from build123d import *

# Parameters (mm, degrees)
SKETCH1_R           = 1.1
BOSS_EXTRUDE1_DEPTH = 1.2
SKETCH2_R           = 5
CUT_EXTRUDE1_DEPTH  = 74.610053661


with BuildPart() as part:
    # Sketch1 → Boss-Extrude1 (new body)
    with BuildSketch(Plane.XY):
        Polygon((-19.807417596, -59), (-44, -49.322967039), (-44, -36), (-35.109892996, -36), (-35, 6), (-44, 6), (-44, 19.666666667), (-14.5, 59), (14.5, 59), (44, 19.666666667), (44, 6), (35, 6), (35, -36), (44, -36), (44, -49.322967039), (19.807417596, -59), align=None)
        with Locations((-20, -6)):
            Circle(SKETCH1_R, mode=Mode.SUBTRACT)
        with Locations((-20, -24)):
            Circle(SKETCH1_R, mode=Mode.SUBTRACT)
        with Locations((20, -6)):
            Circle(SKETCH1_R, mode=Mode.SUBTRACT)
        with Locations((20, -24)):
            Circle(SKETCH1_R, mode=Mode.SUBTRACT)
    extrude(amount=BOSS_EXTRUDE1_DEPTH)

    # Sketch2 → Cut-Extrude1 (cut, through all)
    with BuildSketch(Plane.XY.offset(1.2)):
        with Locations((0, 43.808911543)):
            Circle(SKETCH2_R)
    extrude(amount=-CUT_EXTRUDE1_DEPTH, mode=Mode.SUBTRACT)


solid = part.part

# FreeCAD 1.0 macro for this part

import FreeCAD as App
import Part
import Sketcher

doc = App.newDocument("Part")
body = doc.addObject("PartDesign::Body", "Body")

sketch1 = body.newObject("Sketcher::SketchObject", "Sketch")
sketch1.AttachmentSupport = (doc.getObject("XY_Plane"), [""])
sketch1.MapMode = "FlatFace"
sketch1.addGeometry([
    Part.LineSegment(App.Vector(-44, -49.322967, 0), App.Vector(-19.807418, -59, 0)),
    Part.LineSegment(App.Vector(-19.807418, -59, 0), App.Vector(19.807418, -59, 0)),
    Part.LineSegment(App.Vector(19.807418, -59, 0), App.Vector(44, -49.322967, 0)),
    Part.LineSegment(App.Vector(44, -49.322967, 0), App.Vector(44, -36, 0)),
    Part.LineSegment(App.Vector(44, -36, 0), App.Vector(35, -36, 0)),
    Part.LineSegment(App.Vector(35, -36, 0), App.Vector(35, 6, 0)),
    Part.LineSegment(App.Vector(35, 6, 0), App.Vector(44, 6, 0)),
    Part.LineSegment(App.Vector(44, 6, 0), App.Vector(44, 19.666667, 0)),
    Part.LineSegment(App.Vector(44, 19.666667, 0), App.Vector(14.5, 59, 0)),
    Part.LineSegment(App.Vector(14.5, 59, 0), App.Vector(-14.5, 59, 0)),
    Part.LineSegment(App.Vector(-14.5, 59, 0), App.Vector(-44, 19.666667, 0)),
    Part.LineSegment(App.Vector(-44, 19.666667, 0), App.Vector(-44, 6, 0)),
    Part.LineSegment(App.Vector(-44, 6, 0), App.Vector(-35, 6, 0)),
    Part.LineSegment(App.Vector(-35, 6, 0), App.Vector(-35.109893, -36, 0)),
    Part.LineSegment(App.Vector(-35.109893, -36, 0), App.Vector(-44, -36, 0)),
    Part.LineSegment(App.Vector(-44, -36, 0), App.Vector(-44, -49.322967, 0)),
    Part.Circle(App.Vector(20, -24, 0), App.Vector(0, 0, 1), 1.1),
    Part.Circle(App.Vector(-20, -24, 0), App.Vector(0, 0, 1), 1.1),
    Part.Circle(App.Vector(20, -6, 0), App.Vector(0, 0, 1), 1.1),
    Part.Circle(App.Vector(-20, -6, 0), App.Vector(0, 0, 1), 1.1),
], False)
sketch1.addConstraint([
    Sketcher.Constraint("Coincident", 0, 2, 1, 1),
    Sketcher.Constraint("Coincident", 1, 2, 2, 1),
    Sketcher.Constraint("Coincident", 2, 2, 3, 1),
    Sketcher.Constraint("Coincident", 3, 2, 4, 1),
    Sketcher.Constraint("Coincident", 4, 2, 5, 1),
    Sketcher.Constraint("Coincident", 5, 2, 6, 1),
    Sketcher.Constraint("Coincident", 6, 2, 7, 1),
    Sketcher.Constraint("Coincident", 7, 2, 8, 1),
    Sketcher.Constraint("Coincident", 8, 2, 9, 1),
    Sketcher.Constraint("Coincident", 9, 2, 10, 1),
    Sketcher.Constraint("Coincident", 10, 2, 11, 1),
    Sketcher.Constraint("Coincident", 11, 2, 12, 1),
    Sketcher.Constraint("Coincident", 12, 2, 13, 1),
    Sketcher.Constraint("Coincident", 13, 2, 14, 1),
    Sketcher.Constraint("Coincident", 14, 2, 15, 1),
    Sketcher.Constraint("Coincident", 15, 2, 0, 1),
    Sketcher.Constraint("Horizontal", 1),
    Sketcher.Constraint("Vertical", 3),
    Sketcher.Constraint("Horizontal", 4),
    Sketcher.Constraint("Vertical", 5),
    Sketcher.Constraint("Horizontal", 6),
    Sketcher.Constraint("Vertical", 7),
    Sketcher.Constraint("Horizontal", 9),
    Sketcher.Constraint("Vertical", 11),
    Sketcher.Constraint("Horizontal", 12),
    Sketcher.Constraint("Horizontal", 14),
    Sketcher.Constraint("Vertical", 15),
    Sketcher.Constraint("Equal", 16, 17),
    Sketcher.Constraint("Equal", 17, 18),
    Sketcher.Constraint("Equal", 18, 19),
    Sketcher.Constraint("Symmetric", 16, 3, 17, 3, -2),
    Sketcher.Constraint("Symmetric", 18, 3, 19, 3, -2),
    Sketcher.Constraint("Symmetric", 7, 2, 10, 2, -2),
    Sketcher.Constraint("Symmetric", 5, 2, 12, 2, -2),
    Sketcher.Constraint("Symmetric", 3, 2, 14, 2, -2),
    Sketcher.Constraint("Horizontal", 2, 2, 15, 2),
    Sketcher.Constraint("Vertical", 16, 3, 18, 3),
    Sketcher.Constraint("Vertical", 3, 2, 6, 2),
    Sketcher.Constraint("Equal", 0, 2),
    Sketcher.Constraint("Equal", 8, 10),
    Sketcher.Constraint("Diameter", 16, 2.2),
    Sketcher.Constraint("DistanceX", 4, 2, 4, 1, 9.0),
    Sketcher.Constraint("DistanceX", 9, 2, 9, 1, 29.0),
    Sketcher.Constraint("DistanceY", 5, 1, 5, 2, 42.0),
    Sketcher.Constraint("DistanceX", -1, 1, 16, 3, 20.0),
    Sketcher.Constraint("DistanceY", 16, 3, -1, 1, 24.0),
    Sketcher.Constraint("DistanceY", 18, 3, -1, 1, 6.0),
    Sketcher.Constraint("DistanceY", 0, 2, -1, 1, 59.0),
    Sketcher.Constraint("DistanceX", -1, 1, 2, 2, 44.0),
    Sketcher.Constraint("DistanceY", 3, 2, -1, 1, 36.0),
    Sketcher.Constraint("DistanceY", -1, 1, 8, 2, 59.0),
    Sketcher.Constraint("Distance", 0, 26.056209),
    Sketcher.Constraint("DistanceX", 1, 1, 1, 2, 39.614835),
    Sketcher.Constraint("DistanceX", 14, 2, 14, 1, 8.890107),
    Sketcher.Constraint("DistanceY", 7, 1, 7, 2, 13.666667),
])
pad1 = body.newObject("PartDesign::Pad", "Pad")
pad1.Profile = sketch1
pad1.Length = 1.2

sketch2 = body.newObject("Sketcher::SketchObject", "Sketch001")
sketch2.AttachmentSupport = (doc.getObject("XY_Plane"), [""])
sketch2.MapMode = "FlatFace"
sketch2.AttachmentOffset = App.Placement(App.Vector(0, 0, 1.2), App.Rotation())
sketch2.addGeometry(Part.Circle(App.Vector(0, 43.808912, 0), App.Vector(0, 0, 1), 5), False)
sketch2.addConstraint([
    Sketcher.Constraint("PointOnObject", 0, 3, -2),
    Sketcher.Constraint("Diameter", 0, 10.0),
    Sketcher.Constraint("DistanceY", -1, 1, 0, 3, 43.808912),
])
pocket1 = body.newObject("PartDesign::Pocket", "Pocket")
pocket1.Profile = sketch2
pocket1.Type = "ThroughAll"

doc.recompute()
